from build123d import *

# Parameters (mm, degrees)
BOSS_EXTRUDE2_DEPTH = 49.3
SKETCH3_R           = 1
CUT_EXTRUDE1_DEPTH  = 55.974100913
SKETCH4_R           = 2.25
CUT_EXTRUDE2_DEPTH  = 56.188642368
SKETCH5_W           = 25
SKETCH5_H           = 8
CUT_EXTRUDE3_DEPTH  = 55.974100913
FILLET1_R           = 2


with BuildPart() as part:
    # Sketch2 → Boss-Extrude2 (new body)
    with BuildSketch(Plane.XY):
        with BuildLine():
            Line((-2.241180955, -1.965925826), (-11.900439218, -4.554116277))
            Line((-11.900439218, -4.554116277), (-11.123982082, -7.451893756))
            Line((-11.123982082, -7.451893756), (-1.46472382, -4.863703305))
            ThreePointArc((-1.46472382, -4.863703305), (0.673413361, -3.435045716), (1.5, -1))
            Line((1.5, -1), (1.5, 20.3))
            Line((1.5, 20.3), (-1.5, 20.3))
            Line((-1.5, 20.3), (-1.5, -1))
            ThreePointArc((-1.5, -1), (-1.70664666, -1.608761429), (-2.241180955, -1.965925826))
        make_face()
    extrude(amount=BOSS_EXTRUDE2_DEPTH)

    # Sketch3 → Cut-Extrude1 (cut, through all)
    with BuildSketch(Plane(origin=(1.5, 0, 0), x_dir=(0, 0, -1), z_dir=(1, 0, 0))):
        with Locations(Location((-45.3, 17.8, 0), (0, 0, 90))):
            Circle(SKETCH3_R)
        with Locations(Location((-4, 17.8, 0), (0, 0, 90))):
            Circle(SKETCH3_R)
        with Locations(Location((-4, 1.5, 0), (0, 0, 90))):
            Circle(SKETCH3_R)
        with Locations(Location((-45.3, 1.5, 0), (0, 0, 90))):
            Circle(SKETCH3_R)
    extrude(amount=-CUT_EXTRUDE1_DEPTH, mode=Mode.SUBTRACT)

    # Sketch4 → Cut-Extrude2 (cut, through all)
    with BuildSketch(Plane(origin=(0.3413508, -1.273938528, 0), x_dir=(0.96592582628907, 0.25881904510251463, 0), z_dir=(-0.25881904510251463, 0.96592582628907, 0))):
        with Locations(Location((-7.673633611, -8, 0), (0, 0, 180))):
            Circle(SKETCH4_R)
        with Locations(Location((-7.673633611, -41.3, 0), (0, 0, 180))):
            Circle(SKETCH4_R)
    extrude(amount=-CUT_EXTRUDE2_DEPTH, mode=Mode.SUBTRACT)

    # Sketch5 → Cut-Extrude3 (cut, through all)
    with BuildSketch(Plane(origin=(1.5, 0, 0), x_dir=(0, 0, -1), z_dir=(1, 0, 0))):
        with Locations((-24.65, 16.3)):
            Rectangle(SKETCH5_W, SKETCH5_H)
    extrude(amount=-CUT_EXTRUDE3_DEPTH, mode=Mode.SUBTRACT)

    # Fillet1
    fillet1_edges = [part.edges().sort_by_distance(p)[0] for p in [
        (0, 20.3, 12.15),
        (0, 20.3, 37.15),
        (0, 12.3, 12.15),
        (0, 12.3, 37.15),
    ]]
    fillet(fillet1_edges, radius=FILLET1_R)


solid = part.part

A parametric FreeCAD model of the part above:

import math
import FreeCAD as App
import Part
import Sketcher

V = App.Vector
Q = App.Units.Quantity


def edges_at(feature, points):
    """Names of the edges that pass closest to the given points."""
    edges = feature.Shape.Edges
    near = lambda p: min(range(len(edges)), key=lambda i: edges[i].distToShape(Part.Vertex(*p))[0])
    return sorted({f"Edge{near(p) + 1}" for p in points})

doc = App.newDocument("Part")
params = doc.addObject("Spreadsheet::Sheet", "Params")
for row, (alias, value) in enumerate([
    ("sketch1_radius", "4 mm"),
    ("sketch1_radius2", "1 mm"),
    ("sketch1_length", "10 mm"),
    ("sketch1_height", "21.3 mm"),
    ("pad1_length", "49.3 mm"),
    ("sketch2_diameter", "2 mm"),
    ("sketch3_diameter", "4.5 mm"),
    ("sketch4_width", "8 mm"),
    ("sketch4_height", "25 mm"),
    ("fillet_radius", "2 mm"),
], start=1):
    params.set(f"A{row}", alias)
    params.set(f"B{row}", "=" + value)
    params.setAlias(f"B{row}", alias)

body = doc.addObject("PartDesign::Body", "Body")

sketch1 = body.newObject("Sketcher::SketchObject", "Sketch")
sketch1.AttachmentSupport = (doc.getObject("XY_Plane"), [""])
sketch1.MapMode = "FlatFace"
sketch1.addGeometry(Part.LineSegment(V(-2.2, -2, 0), V(-11.9, -4.6, 0)), False)
sketch1.addGeometry(Part.LineSegment(V(-11.9, -4.6, 0), V(-11.1, -7.5, 0)), False)
sketch1.addGeometry(Part.LineSegment(V(-11.1, -7.5, 0), V(-1.5, -4.9, 0)), False)
sketch1.addGeometry(Part.ArcOfCircle(Part.Circle(V(-2.5, -1, 0), V(0, 0, 1), 4), math.radians(-75), math.radians(0)), False)
sketch1.addGeometry(Part.LineSegment(V(1.5, -1, 0), V(1.5, 20.3, 0)), False)
sketch1.addGeometry(Part.LineSegment(V(1.5, 20.3, 0), V(-1.5, 20.3, 0)), False)
sketch1.addGeometry(Part.LineSegment(V(-1.5, 20.3, 0), V(-1.5, -1, 0)), False)
sketch1.addGeometry(Part.ArcOfCircle(Part.Circle(V(-2.5, -1, 0), V(0, 0, 1), 1), math.radians(-75), math.radians(0)), False)
sketch1.addConstraint(Sketcher.Constraint("Coincident", 0, 2, 1, 1))
sketch1.addConstraint(Sketcher.Constraint("Coincident", 1, 2, 2, 1))
sketch1.addConstraint(Sketcher.Constraint("Tangent", 2, 2, 3, 1))
sketch1.addConstraint(Sketcher.Constraint("Tangent", 3, 2, 4, 1))
sketch1.addConstraint(Sketcher.Constraint("Coincident", 4, 2, 5, 1))
sketch1.addConstraint(Sketcher.Constraint("Coincident", 5, 2, 6, 1))
sketch1.addConstraint(Sketcher.Constraint("Tangent", 6, 2, 7, 2))
sketch1.addConstraint(Sketcher.Constraint("Tangent", 7, 1, 0, 1))
sketch1.addConstraint(Sketcher.Constraint("Vertical", 4))
sketch1.addConstraint(Sketcher.Constraint("Horizontal", 5))
sketch1.addConstraint(Sketcher.Constraint("Vertical", 6))
sketch1.addConstraint(Sketcher.Constraint("Coincident", 7, 3, 3, 3))
sketch1.addConstraint(Sketcher.Constraint("Perpendicular", 0, 1))
sketch1.addConstraint(Sketcher.Constraint("Perpendicular", 1, 2))
sketch1.addConstraint(Sketcher.Constraint("Radius", 3, 4.0))
sketch1.addConstraint(Sketcher.Constraint("Radius", 7, 1.0))
sketch1.addConstraint(Sketcher.Constraint("Angle", 0, Q("-165 deg")))
sketch1.addConstraint(Sketcher.Constraint("Distance", 0, 10.0))
sketch1.addConstraint(Sketcher.Constraint("DistanceY", 4, 1, 4, 2, 21.3))
sketch1.addConstraint(Sketcher.Constraint("DistanceY", 3, 3, -1, 1, 1.0))
sketch1.addConstraint(Sketcher.Constraint("DistanceX", 3, 3, -1, 1, 2.5))
sketch1.setExpression("Constraints[14]", "Params.sketch1_radius")
sketch1.setExpression("Constraints[15]", "Params.sketch1_radius2")
sketch1.setExpression("Constraints[17]", "Params.sketch1_length")
sketch1.setExpression("Constraints[18]", "Params.sketch1_height")
pad1 = body.newObject("PartDesign::Pad", "Pad")
pad1.Profile = sketch1
pad1.setExpression("Length", "Params.pad1_length")

sketch2 = body.newObject("Sketcher::SketchObject", "Sketch001")
sketch2.AttachmentSupport = (doc.getObject("YZ_Plane"), [""])
sketch2.MapMode = "FlatFace"
sketch2.AttachmentOffset = App.Placement(V(0, 0, 1.5), App.Rotation())
sketch2.addGeometry(Part.Circle(V(17.8, 45.3, 0), V(0, 0, 1), 1), False)
sketch2.addGeometry(Part.Circle(V(17.8, 4, 0), V(0, 0, 1), 1), False)
sketch2.addGeometry(Part.Circle(V(1.5, 4, 0), V(0, 0, 1), 1), False)
sketch2.addGeometry(Part.Circle(V(1.5, 45.3, 0), V(0, 0, 1), 1), False)
sketch2.addConstraint(Sketcher.Constraint("Equal", 0, 1))
sketch2.addConstraint(Sketcher.Constraint("Equal", 1, 2))
sketch2.addConstraint(Sketcher.Constraint("Equal", 2, 3))
sketch2.addConstraint(Sketcher.Constraint("Horizontal", 1, 3, 2, 3))
sketch2.addConstraint(Sketcher.Constraint("Horizontal", 0, 3, 3, 3))
sketch2.addConstraint(Sketcher.Constraint("Vertical", 0, 3, 1, 3))
sketch2.addConstraint(Sketcher.Constraint("Vertical", 2, 3, 3, 3))
sketch2.addConstraint(Sketcher.Constraint("Diameter", 0, 2.0))
sketch2.addConstraint(Sketcher.Constraint("DistanceY", -1, 1, 1, 3, 4.0))
sketch2.addConstraint(Sketcher.Constraint("DistanceX", -1, 1, 0, 3, 17.8))
sketch2.addConstraint(Sketcher.Constraint("DistanceY", -1, 1, 0, 3, 45.3))
sketch2.addConstraint(Sketcher.Constraint("DistanceX", -1, 1, 2, 3, 1.5))
sketch2.setExpression("Constraints[7]", "Params.sketch2_diameter")
pocket1 = body.newObject("PartDesign::Pocket", "Pocket")
pocket1.Profile = sketch2
pocket1.Type = "ThroughAll"

sketch3 = body.newObject("Sketcher::SketchObject", "Sketch002")
sketch3.Placement = App.Placement(V(0.341351, -1.273939, 0), App.Rotation(V(0.965925826, 0.258819045, 0), V(0, 0, -0.999999999), V(-0.258819045, 0.965925826, 0), "ZXY"))
sketch3.addGeometry(Part.Circle(V(-7.7, -8, 0), V(0, 0, 1), 2.2), False)
sketch3.addGeometry(Part.Circle(V(-7.7, -41.3, 0), V(0, 0, 1), 2.2), False)
sketch3.addConstraint(Sketcher.Constraint("Equal", 0, 1))
sketch3.addConstraint(Sketcher.Constraint("Vertical", 0, 3, 1, 3))
sketch3.addConstraint(Sketcher.Constraint("Diameter", 0, 4.5))
sketch3.addConstraint(Sketcher.Constraint("DistanceY", 0, 3, -1, 1, 8.0))
sketch3.addConstraint(Sketcher.Constraint("DistanceY", 1, 3, -1, 1, 41.3))
sketch3.addConstraint(Sketcher.Constraint("DistanceX", 0, 3, -1, 1, 7.673634))
sketch3.setExpression("Constraints[2]", "Params.sketch3_diameter")
pocket2 = body.newObject("PartDesign::Pocket", "Pocket001")
pocket2.Profile = sketch3
pocket2.Type = "ThroughAll"

sketch4 = body.newObject("Sketcher::SketchObject", "Sketch003")
sketch4.AttachmentSupport = (doc.getObject("YZ_Plane"), [""])
sketch4.MapMode = "FlatFace"
sketch4.AttachmentOffset = App.Placement(V(0, 0, 1.5), App.Rotation())
sketch4.addGeometry(Part.LineSegment(V(20, 37, 0), V(12, 37, 0)), False)
sketch4.addGeometry(Part.LineSegment(V(12, 37, 0), V(12, 12, 0)), False)
sketch4.addGeometry(Part.LineSegment(V(12, 12, 0), V(20, 12, 0)), False)
sketch4.addGeometry(Part.LineSegment(V(20, 12, 0), V(20, 37, 0)), False)
sketch4.addConstraint(Sketcher.Constraint("Coincident", 0, 2, 1, 1))
sketch4.addConstraint(Sketcher.Constraint("Coincident", 1, 2, 2, 1))
sketch4.addConstraint(Sketcher.Constraint("Coincident", 2, 2, 3, 1))
sketch4.addConstraint(Sketcher.Constraint("Coincident", 3, 2, 0, 1))
sketch4.addConstraint(Sketcher.Constraint("Horizontal", 0))
sketch4.addConstraint(Sketcher.Constraint("Vertical", 1))
sketch4.addConstraint(Sketcher.Constraint("Horizontal", 2))
sketch4.addConstraint(Sketcher.Constraint("Vertical", 3))
sketch4.addConstraint(Sketcher.Constraint("DistanceX", 0, 2, 0, 1, 8.0))
sketch4.addConstraint(Sketcher.Constraint("DistanceY", 1, 2, 1, 1, 25.0))
sketch4.addConstraint(Sketcher.Constraint("DistanceX", -1, 1, 0, 2, 12.3))
sketch4.addConstraint(Sketcher.Constraint("DistanceY", -1, 1, 0, 2, 37.15))
sketch4.setExpression("Constraints[8]", "Params.sketch4_width")
sketch4.setExpression("Constraints[9]", "Params.sketch4_height")
pocket3 = body.newObject("PartDesign::Pocket", "Pocket002")
pocket3.Profile = sketch4
pocket3.Type = "ThroughAll"
doc.recompute()

fillet = body.newObject("PartDesign::Fillet", "Fillet")
fillet.Base = (pocket3, edges_at(pocket3, [
    (0, 20.3, 12.15),
    (0, 20.3, 37.15),
    (0, 12.3, 12.15),
    (0, 12.3, 37.15),
]))
fillet.setExpression("Radius", "Params.fillet_radius")

doc.recompute()
